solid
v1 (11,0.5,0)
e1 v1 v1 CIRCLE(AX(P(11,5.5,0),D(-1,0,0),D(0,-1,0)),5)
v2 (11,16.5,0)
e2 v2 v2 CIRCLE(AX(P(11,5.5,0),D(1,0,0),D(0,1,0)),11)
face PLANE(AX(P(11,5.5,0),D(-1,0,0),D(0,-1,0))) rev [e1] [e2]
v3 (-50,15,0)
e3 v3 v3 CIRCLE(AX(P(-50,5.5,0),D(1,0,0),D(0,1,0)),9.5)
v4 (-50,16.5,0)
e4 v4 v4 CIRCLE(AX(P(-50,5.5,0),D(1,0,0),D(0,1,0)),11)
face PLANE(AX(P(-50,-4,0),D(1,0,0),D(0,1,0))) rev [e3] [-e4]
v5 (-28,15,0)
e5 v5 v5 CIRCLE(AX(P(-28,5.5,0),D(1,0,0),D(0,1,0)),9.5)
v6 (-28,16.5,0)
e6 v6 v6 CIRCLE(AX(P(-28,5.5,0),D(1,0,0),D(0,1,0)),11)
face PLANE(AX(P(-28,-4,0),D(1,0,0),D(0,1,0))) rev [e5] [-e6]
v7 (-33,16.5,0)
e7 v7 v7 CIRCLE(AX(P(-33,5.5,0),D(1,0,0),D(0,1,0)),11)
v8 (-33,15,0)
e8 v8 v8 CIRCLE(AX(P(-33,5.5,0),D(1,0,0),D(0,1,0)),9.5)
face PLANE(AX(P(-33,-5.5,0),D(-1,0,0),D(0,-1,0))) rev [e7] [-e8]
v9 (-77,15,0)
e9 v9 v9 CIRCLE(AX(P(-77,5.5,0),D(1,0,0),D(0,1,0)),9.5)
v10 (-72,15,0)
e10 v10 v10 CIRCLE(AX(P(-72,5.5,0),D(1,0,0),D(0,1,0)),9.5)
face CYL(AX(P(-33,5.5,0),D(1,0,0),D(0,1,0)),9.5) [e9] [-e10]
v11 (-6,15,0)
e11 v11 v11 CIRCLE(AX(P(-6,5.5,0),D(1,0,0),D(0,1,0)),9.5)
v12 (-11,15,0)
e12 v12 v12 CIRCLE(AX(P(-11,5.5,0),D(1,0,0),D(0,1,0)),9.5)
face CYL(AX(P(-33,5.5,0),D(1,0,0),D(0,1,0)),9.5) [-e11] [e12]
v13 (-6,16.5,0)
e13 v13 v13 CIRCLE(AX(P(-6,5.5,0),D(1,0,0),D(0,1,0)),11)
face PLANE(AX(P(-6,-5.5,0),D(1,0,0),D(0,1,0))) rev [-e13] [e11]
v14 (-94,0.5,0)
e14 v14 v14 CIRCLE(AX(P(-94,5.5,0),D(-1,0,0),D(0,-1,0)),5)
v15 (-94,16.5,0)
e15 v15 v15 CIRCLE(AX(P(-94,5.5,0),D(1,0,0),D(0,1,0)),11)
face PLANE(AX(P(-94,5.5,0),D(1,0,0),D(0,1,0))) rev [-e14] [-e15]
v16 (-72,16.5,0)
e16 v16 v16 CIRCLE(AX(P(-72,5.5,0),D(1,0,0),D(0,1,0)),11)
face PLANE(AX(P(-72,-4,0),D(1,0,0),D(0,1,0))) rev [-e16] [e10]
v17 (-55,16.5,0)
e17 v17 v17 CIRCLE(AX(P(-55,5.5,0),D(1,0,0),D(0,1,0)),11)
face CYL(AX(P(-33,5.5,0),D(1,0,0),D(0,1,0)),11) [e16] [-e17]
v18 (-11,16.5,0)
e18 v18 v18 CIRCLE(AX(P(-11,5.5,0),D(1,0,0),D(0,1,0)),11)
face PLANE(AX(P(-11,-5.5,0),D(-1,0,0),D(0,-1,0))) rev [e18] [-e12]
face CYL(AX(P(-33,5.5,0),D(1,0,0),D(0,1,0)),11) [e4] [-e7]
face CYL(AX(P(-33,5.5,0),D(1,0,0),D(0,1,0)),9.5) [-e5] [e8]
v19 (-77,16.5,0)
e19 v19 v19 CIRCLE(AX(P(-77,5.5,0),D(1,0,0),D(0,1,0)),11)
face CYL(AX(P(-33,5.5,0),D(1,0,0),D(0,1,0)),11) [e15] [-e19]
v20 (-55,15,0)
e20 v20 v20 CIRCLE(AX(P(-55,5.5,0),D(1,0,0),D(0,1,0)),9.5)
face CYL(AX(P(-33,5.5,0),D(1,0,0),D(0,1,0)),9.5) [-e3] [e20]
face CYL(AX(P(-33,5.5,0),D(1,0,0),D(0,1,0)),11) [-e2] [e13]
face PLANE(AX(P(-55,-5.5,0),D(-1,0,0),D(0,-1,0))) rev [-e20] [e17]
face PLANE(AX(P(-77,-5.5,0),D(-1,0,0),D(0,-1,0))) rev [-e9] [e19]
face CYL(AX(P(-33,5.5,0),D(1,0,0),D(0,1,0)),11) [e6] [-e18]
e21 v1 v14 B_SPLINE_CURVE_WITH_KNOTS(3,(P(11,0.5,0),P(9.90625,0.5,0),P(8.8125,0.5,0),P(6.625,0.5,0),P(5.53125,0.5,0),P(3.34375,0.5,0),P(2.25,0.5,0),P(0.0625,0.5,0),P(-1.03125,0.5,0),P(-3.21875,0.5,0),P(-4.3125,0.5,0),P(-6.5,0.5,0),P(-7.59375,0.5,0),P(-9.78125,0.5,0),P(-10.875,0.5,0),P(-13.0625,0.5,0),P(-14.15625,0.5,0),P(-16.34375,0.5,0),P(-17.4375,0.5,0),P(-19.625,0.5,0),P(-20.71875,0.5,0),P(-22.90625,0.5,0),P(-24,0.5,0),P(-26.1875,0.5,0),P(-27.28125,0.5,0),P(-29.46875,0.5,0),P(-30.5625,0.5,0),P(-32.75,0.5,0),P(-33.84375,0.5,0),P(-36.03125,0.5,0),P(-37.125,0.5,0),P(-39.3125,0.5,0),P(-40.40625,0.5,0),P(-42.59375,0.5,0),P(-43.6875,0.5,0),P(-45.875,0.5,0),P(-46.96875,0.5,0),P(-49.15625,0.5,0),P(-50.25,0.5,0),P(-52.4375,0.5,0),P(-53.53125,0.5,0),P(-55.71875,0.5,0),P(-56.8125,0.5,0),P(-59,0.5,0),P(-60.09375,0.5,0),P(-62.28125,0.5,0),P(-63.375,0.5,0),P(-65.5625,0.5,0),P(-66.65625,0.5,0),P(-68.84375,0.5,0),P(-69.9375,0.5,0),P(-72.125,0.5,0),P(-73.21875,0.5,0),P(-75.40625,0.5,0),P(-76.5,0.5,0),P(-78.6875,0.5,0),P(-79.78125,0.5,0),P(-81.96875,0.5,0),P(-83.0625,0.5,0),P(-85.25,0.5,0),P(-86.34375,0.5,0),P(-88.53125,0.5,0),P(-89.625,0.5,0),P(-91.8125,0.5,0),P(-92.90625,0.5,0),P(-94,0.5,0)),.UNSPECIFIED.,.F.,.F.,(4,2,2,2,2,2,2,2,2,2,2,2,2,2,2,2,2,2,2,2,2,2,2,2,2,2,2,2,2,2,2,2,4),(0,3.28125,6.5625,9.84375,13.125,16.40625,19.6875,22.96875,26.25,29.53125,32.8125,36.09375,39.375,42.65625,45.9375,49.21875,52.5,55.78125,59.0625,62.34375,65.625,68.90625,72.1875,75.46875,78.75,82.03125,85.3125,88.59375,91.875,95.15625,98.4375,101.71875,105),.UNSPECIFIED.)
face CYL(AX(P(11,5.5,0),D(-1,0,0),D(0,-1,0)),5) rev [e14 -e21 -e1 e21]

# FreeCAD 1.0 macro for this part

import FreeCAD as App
import Part
import Sketcher

V = App.Vector
Q = App.Units.Quantity

doc = App.newDocument("Part")
params = doc.addObject("Spreadsheet::Sheet", "Params")
for row, (alias, value) in enumerate([
    ("sketch1_width", "17 mm"),
    ("sketch1_width2", "105 mm"),
    ("sketch1_height", "11 mm"),
    ("sketch1_height2", "1.5 mm"),
    ("revolution_angle", "360 deg"),
    ("sketch2_diameter", "10 mm"),
], start=1):
    params.set(f"A{row}", alias)
    params.set(f"B{row}", "=" + value)
    params.setAlias(f"B{row}", alias)

body = doc.addObject("PartDesign::Body", "Body")

sketch1 = body.newObject("Sketcher::SketchObject", "Sketch")
sketch1.AttachmentSupport = (doc.getObject("XY_Plane"), [""])
sketch1.MapMode = "FlatFace"
sketch1.addGeometry([
    Part.LineSegment(V(-6, -5.5, 0), V(11, -5.5, 0)),
    Part.LineSegment(V(11, -5.5, 0), V(11, 5.5, 0)),
    Part.LineSegment(V(11, 5.5, 0), V(-94, 5.5, 0)),
    Part.LineSegment(V(-94, 5.5, 0), V(-94, -5.5, 0)),
    Part.LineSegment(V(-94, -5.5, 0), V(-77, -5.5, 0)),
    Part.LineSegment(V(-77, -5.5, 0), V(-77, -4, 0)),
    Part.LineSegment(V(-77, -4, 0), V(-72, -4, 0)),
    Part.LineSegment(V(-72, -4, 0), V(-72, -5.5, 0)),
    Part.LineSegment(V(-72, -5.5, 0), V(-55, -5.5, 0)),
    Part.LineSegment(V(-55, -5.5, 0), V(-55, -4, 0)),
    Part.LineSegment(V(-55, -4, 0), V(-50, -4, 0)),
    Part.LineSegment(V(-50, -4, 0), V(-50, -5.5, 0)),
    Part.LineSegment(V(-50, -5.5, 0), V(-33, -5.5, 0)),
    Part.LineSegment(V(-33, -5.5, 0), V(-33, -4, 0)),
    Part.LineSegment(V(-33, -4, 0), V(-28, -4, 0)),
    Part.LineSegment(V(-28, -4, 0), V(-28, -5.5, 0)),
    Part.LineSegment(V(-28, -5.5, 0), V(-11, -5.5, 0)),
    Part.LineSegment(V(-11, -5.5, 0), V(-11, -4, 0)),
    Part.LineSegment(V(-11, -4, 0), V(-6, -4, 0)),
    Part.LineSegment(V(-6, -4, 0), V(-6, -5.5, 0)),
], False)
sketch1.addGeometry(Part.LineSegment(V(11, 5.5, 0), V(-94, 5.5, 0)), True)
sketch1.addConstraint([
    Sketcher.Constraint("Coincident", 0, 2, 1, 1),
    Sketcher.Constraint("Coincident", 1, 2, 2, 1),
    Sketcher.Constraint("Coincident", 2, 2, 3, 1),
    Sketcher.Constraint("Coincident", 3, 2, 4, 1),
    Sketcher.Constraint("Coincident", 4, 2, 5, 1),
    Sketcher.Constraint("Coincident", 5, 2, 6, 1),
    Sketcher.Constraint("Coincident", 6, 2, 7, 1),
    Sketcher.Constraint("Coincident", 7, 2, 8, 1),
    Sketcher.Constraint("Coincident", 8, 2, 9, 1),
    Sketcher.Constraint("Coincident", 9, 2, 10, 1),
    Sketcher.Constraint("Coincident", 10, 2, 11, 1),
    Sketcher.Constraint("Coincident", 11, 2, 12, 1),
    Sketcher.Constraint("Coincident", 12, 2, 13, 1),
    Sketcher.Constraint("Coincident", 13, 2, 14, 1),
    Sketcher.Constraint("Coincident", 14, 2, 15, 1),
    Sketcher.Constraint("Coincident", 15, 2, 16, 1),
    Sketcher.Constraint("Coincident", 16, 2, 17, 1),
    Sketcher.Constraint("Coincident", 17, 2, 18, 1),
    Sketcher.Constraint("Coincident", 18, 2, 19, 1),
    Sketcher.Constraint("Coincident", 19, 2, 0, 1),
    Sketcher.Constraint("Horizontal", 0),
    Sketcher.Constraint("Vertical", 1),
    Sketcher.Constraint("Horizontal", 2),
    Sketcher.Constraint("Vertical", 3),
    Sketcher.Constraint("Horizontal", 4),
    Sketcher.Constraint("Vertical", 5),
    Sketcher.Constraint("Horizontal", 6),
    Sketcher.Constraint("Vertical", 7),
    Sketcher.Constraint("Horizontal", 8),
    Sketcher.Constraint("Vertical", 9),
    Sketcher.Constraint("Horizontal", 10),
    Sketcher.Constraint("Vertical", 11),
    Sketcher.Constraint("Horizontal", 12),
    Sketcher.Constraint("Vertical", 13),
    Sketcher.Constraint("Horizontal", 14),
    Sketcher.Constraint("Vertical", 15),
    Sketcher.Constraint("Horizontal", 16),
    Sketcher.Constraint("Vertical", 17),
    Sketcher.Constraint("Horizontal", 18),
    Sketcher.Constraint("Vertical", 19),
    Sketcher.Constraint("Horizontal", 20),
    Sketcher.Constraint("Coincident", 20, 1, 1, 2),
    Sketcher.Constraint("Symmetric", 1, 2, 16, 2, -1, 1),
    Sketcher.Constraint("Symmetric", 3, 2, 20, 2, -1),
    Sketcher.Constraint("Horizontal", 0, 2, 3, 2),
    Sketcher.Constraint("Horizontal", 4, 2, 7, 2),
    Sketcher.Constraint("Horizontal", 6, 2, 9, 2),
    Sketcher.Constraint("Horizontal", 8, 2, 11, 2),
    Sketcher.Constraint("Horizontal", 10, 2, 13, 2),
    Sketcher.Constraint("Horizontal", 14, 2, 17, 2),
    Sketcher.Constraint("Equal", 0, 4),
    Sketcher.Constraint("Equal", 4, 8),
    Sketcher.Constraint("Equal", 6, 10),
    Sketcher.Constraint("Equal", 8, 12),
    Sketcher.Constraint("Equal", 10, 14),
    Sketcher.Constraint("Equal", 12, 16),
    Sketcher.Constraint("Equal", 14, 18),
    Sketcher.Constraint("DistanceX", 0, 1, 0, 2, Q("17 mm")),
    Sketcher.Constraint("DistanceX", 2, 2, 2, 1, Q("105 mm")),
    Sketcher.Constraint("DistanceY", 1, 1, 1, 2, Q("11 mm")),
    Sketcher.Constraint("DistanceY", 5, 1, 5, 2, Q("1.5 mm")),
])
sketch1.setExpression("Constraints[57]", "Params.sketch1_width")
sketch1.setExpression("Constraints[58]", "Params.sketch1_width2")
sketch1.setExpression("Constraints[59]", "Params.sketch1_height")
sketch1.setExpression("Constraints[60]", "Params.sketch1_height2")
revolution = body.newObject("PartDesign::Revolution", "Revolution")
revolution.Profile = sketch1
revolution.ReferenceAxis = (sketch1, ["Axis0"])
revolution.setExpression("Angle", "Params.revolution_angle")

sketch2 = body.newObject("Sketcher::SketchObject", "Sketch001")
sketch2.AttachmentSupport = (doc.getObject("YZ_Plane"), [""])
sketch2.MapMode = "FlatFace"
sketch2.AttachmentOffset = App.Placement(V(0, 0, -94), App.Rotation())
sketch2.addGeometry(Part.Circle(V(6, 0, 0), V(0, 0, 1), 5), False)
sketch2.addConstraint([
    Sketcher.Constraint("PointOnObject", 0, 3, -1),
    Sketcher.Constraint("Diameter", 0, Q("10 mm")),
    Sketcher.Constraint("DistanceX", -1, 1, 0, 3, Q("5.5 mm")),
])
sketch2.setExpression("Constraints[1]", "Params.sketch2_diameter")
pocket1 = body.newObject("PartDesign::Pocket", "Pocket")
pocket1.Profile = sketch2
pocket1.Type = "ThroughAll"
pocket1.Reversed = True

doc.recompute()
